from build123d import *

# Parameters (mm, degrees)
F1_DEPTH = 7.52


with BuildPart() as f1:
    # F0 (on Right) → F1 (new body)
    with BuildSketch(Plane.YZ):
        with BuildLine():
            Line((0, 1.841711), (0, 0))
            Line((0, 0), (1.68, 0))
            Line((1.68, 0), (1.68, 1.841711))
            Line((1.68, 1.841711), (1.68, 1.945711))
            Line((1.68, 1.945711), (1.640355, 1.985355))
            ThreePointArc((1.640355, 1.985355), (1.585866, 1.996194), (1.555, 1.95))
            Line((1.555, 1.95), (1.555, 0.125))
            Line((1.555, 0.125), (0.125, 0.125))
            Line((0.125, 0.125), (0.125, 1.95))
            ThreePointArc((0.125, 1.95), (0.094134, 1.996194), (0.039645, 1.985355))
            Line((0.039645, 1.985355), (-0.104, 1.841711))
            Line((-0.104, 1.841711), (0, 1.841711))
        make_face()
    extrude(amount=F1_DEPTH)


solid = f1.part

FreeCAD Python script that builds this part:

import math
import FreeCAD as App
import Part
import Sketcher
from FreeCAD import Vector
Q = App.Units.Quantity

doc = App.newDocument("Part")
body = doc.addObject("PartDesign::Body", "Body")

# Sketch on YZ plane
sketch1 = doc.addObject("Sketcher::SketchObject", "Sketch")
body.addObject(sketch1)
sketch1.AttachmentSupport = (doc.YZ_Plane, [""])
sketch1.MapMode = "FlatFace"
sketch1.addGeometry(Part.LineSegment(Vector(0, 1.842, 0), Vector(0, 0, 0)), False)
sketch1.addGeometry(Part.LineSegment(Vector(0, 0, 0), Vector(1.68, 0, 0)), False)
sketch1.addGeometry(Part.LineSegment(Vector(1.68, 0, 0), Vector(1.68, 1.946, 0)), False)
sketch1.addGeometry(Part.LineSegment(Vector(1.68, 1.946, 0), Vector(1.64, 1.985, 0)), False)
sketch1.addGeometry(Part.ArcOfCircle(Part.Circle(Vector(1.605, 1.95, 0), Vector(0, 0, 1), 0.05), math.radians(45), math.radians(180)), False)
sketch1.addGeometry(Part.LineSegment(Vector(1.555, 1.95, 0), Vector(1.555, 0.125, 0)), False)
sketch1.addGeometry(Part.LineSegment(Vector(1.555, 0.125, 0), Vector(0.125, 0.125, 0)), False)
sketch1.addGeometry(Part.LineSegment(Vector(0.125, 0.125, 0), Vector(0.125, 1.95, 0)), False)
sketch1.addGeometry(Part.ArcOfCircle(Part.Circle(Vector(0.075, 1.95, 0), Vector(0, 0, 1), 0.05), math.radians(0), math.radians(135)), False)
sketch1.addGeometry(Part.LineSegment(Vector(0.04, 1.985, 0), Vector(-0.104, 1.842, 0)), False)
sketch1.addGeometry(Part.LineSegment(Vector(-0.104, 1.842, 0), Vector(0, 1.842, 0)), False)
sketch1.addConstraint(Sketcher.Constraint("Coincident", 0, 2, 1, 1))
sketch1.addConstraint(Sketcher.Constraint("Coincident", 1, 2, 2, 1))
sketch1.addConstraint(Sketcher.Constraint("Coincident", 2, 2, 3, 1))
sketch1.addConstraint(Sketcher.Constraint("Coincident", 3, 2, 4, 1))
sketch1.addConstraint(Sketcher.Constraint("Coincident", 4, 2, 5, 1))
sketch1.addConstraint(Sketcher.Constraint("Coincident", 5, 2, 6, 1))
sketch1.addConstraint(Sketcher.Constraint("Coincident", 6, 2, 7, 1))
sketch1.addConstraint(Sketcher.Constraint("Coincident", 7, 2, 8, 1))
sketch1.addConstraint(Sketcher.Constraint("Coincident", 8, 2, 9, 1))
sketch1.addConstraint(Sketcher.Constraint("Coincident", 9, 2, 10, 1))
sketch1.addConstraint(Sketcher.Constraint("Coincident", 10, 2, 0, 1))
sketch1.addConstraint(Sketcher.Constraint("Vertical", 0))
sketch1.addConstraint(Sketcher.Constraint("Horizontal", 1))
sketch1.addConstraint(Sketcher.Constraint("Vertical", 2))
sketch1.addConstraint(Sketcher.Constraint("Vertical", 5))
sketch1.addConstraint(Sketcher.Constraint("Horizontal", 6))
sketch1.addConstraint(Sketcher.Constraint("Vertical", 7))
sketch1.addConstraint(Sketcher.Constraint("Horizontal", 10))
sketch1.addConstraint(Sketcher.Constraint("Coincident", 0, 2, -1, 1))
sketch1.addConstraint(Sketcher.Constraint("Equal", 4, 8))
sketch1.addConstraint(Sketcher.Constraint("Horizontal", 4, 3, 8, 3))
sketch1.addConstraint(Sketcher.Constraint("Horizontal", 8, 3, 4, 2))
sketch1.addConstraint(Sketcher.Constraint("Horizontal", 4, 2, 7, 2))
sketch1.addConstraint(Sketcher.Constraint("Horizontal", 3, 2, 8, 2))
sketch1.addConstraint(Sketcher.Constraint("Radius", 4, Q("0.05 mm")))
sketch1.addConstraint(Sketcher.Constraint("DistanceX", 1, 1, 1, 2, Q("1.68 mm")))
sketch1.addConstraint(Sketcher.Constraint("DistanceX", 6, 2, 6, 1, Q("1.43 mm")))
sketch1.addConstraint(Sketcher.Constraint("DistanceX", 10, 1, 10, 2, Q("0.104 mm")))
sketch1.addConstraint(Sketcher.Constraint("DistanceY", 5, 2, 5, 1, Q("1.825 mm")))
sketch1.addConstraint(Sketcher.Constraint("DistanceY", -1, 1, 4, 3, Q("1.95 mm")))
sketch1.addConstraint(Sketcher.Constraint("DistanceX", -1, 1, 4, 3, Q("1.605 mm")))
sketch1.addConstraint(Sketcher.Constraint("DistanceY", 0, 2, 0, 1, Q("1.841711 mm")))
sketch1.addConstraint(Sketcher.Constraint("DistanceY", 2, 1, 2, 2, Q("1.945711 mm")))
sketch1.addConstraint(Sketcher.Constraint("DistanceX", 8, 2, 3, 2, Q("1.60071 mm")))
pad1 = doc.addObject("PartDesign::Pad", "Pad")
body.addObject(pad1)
pad1.Profile = sketch1
pad1.Length = 7.52

doc.recompute()
